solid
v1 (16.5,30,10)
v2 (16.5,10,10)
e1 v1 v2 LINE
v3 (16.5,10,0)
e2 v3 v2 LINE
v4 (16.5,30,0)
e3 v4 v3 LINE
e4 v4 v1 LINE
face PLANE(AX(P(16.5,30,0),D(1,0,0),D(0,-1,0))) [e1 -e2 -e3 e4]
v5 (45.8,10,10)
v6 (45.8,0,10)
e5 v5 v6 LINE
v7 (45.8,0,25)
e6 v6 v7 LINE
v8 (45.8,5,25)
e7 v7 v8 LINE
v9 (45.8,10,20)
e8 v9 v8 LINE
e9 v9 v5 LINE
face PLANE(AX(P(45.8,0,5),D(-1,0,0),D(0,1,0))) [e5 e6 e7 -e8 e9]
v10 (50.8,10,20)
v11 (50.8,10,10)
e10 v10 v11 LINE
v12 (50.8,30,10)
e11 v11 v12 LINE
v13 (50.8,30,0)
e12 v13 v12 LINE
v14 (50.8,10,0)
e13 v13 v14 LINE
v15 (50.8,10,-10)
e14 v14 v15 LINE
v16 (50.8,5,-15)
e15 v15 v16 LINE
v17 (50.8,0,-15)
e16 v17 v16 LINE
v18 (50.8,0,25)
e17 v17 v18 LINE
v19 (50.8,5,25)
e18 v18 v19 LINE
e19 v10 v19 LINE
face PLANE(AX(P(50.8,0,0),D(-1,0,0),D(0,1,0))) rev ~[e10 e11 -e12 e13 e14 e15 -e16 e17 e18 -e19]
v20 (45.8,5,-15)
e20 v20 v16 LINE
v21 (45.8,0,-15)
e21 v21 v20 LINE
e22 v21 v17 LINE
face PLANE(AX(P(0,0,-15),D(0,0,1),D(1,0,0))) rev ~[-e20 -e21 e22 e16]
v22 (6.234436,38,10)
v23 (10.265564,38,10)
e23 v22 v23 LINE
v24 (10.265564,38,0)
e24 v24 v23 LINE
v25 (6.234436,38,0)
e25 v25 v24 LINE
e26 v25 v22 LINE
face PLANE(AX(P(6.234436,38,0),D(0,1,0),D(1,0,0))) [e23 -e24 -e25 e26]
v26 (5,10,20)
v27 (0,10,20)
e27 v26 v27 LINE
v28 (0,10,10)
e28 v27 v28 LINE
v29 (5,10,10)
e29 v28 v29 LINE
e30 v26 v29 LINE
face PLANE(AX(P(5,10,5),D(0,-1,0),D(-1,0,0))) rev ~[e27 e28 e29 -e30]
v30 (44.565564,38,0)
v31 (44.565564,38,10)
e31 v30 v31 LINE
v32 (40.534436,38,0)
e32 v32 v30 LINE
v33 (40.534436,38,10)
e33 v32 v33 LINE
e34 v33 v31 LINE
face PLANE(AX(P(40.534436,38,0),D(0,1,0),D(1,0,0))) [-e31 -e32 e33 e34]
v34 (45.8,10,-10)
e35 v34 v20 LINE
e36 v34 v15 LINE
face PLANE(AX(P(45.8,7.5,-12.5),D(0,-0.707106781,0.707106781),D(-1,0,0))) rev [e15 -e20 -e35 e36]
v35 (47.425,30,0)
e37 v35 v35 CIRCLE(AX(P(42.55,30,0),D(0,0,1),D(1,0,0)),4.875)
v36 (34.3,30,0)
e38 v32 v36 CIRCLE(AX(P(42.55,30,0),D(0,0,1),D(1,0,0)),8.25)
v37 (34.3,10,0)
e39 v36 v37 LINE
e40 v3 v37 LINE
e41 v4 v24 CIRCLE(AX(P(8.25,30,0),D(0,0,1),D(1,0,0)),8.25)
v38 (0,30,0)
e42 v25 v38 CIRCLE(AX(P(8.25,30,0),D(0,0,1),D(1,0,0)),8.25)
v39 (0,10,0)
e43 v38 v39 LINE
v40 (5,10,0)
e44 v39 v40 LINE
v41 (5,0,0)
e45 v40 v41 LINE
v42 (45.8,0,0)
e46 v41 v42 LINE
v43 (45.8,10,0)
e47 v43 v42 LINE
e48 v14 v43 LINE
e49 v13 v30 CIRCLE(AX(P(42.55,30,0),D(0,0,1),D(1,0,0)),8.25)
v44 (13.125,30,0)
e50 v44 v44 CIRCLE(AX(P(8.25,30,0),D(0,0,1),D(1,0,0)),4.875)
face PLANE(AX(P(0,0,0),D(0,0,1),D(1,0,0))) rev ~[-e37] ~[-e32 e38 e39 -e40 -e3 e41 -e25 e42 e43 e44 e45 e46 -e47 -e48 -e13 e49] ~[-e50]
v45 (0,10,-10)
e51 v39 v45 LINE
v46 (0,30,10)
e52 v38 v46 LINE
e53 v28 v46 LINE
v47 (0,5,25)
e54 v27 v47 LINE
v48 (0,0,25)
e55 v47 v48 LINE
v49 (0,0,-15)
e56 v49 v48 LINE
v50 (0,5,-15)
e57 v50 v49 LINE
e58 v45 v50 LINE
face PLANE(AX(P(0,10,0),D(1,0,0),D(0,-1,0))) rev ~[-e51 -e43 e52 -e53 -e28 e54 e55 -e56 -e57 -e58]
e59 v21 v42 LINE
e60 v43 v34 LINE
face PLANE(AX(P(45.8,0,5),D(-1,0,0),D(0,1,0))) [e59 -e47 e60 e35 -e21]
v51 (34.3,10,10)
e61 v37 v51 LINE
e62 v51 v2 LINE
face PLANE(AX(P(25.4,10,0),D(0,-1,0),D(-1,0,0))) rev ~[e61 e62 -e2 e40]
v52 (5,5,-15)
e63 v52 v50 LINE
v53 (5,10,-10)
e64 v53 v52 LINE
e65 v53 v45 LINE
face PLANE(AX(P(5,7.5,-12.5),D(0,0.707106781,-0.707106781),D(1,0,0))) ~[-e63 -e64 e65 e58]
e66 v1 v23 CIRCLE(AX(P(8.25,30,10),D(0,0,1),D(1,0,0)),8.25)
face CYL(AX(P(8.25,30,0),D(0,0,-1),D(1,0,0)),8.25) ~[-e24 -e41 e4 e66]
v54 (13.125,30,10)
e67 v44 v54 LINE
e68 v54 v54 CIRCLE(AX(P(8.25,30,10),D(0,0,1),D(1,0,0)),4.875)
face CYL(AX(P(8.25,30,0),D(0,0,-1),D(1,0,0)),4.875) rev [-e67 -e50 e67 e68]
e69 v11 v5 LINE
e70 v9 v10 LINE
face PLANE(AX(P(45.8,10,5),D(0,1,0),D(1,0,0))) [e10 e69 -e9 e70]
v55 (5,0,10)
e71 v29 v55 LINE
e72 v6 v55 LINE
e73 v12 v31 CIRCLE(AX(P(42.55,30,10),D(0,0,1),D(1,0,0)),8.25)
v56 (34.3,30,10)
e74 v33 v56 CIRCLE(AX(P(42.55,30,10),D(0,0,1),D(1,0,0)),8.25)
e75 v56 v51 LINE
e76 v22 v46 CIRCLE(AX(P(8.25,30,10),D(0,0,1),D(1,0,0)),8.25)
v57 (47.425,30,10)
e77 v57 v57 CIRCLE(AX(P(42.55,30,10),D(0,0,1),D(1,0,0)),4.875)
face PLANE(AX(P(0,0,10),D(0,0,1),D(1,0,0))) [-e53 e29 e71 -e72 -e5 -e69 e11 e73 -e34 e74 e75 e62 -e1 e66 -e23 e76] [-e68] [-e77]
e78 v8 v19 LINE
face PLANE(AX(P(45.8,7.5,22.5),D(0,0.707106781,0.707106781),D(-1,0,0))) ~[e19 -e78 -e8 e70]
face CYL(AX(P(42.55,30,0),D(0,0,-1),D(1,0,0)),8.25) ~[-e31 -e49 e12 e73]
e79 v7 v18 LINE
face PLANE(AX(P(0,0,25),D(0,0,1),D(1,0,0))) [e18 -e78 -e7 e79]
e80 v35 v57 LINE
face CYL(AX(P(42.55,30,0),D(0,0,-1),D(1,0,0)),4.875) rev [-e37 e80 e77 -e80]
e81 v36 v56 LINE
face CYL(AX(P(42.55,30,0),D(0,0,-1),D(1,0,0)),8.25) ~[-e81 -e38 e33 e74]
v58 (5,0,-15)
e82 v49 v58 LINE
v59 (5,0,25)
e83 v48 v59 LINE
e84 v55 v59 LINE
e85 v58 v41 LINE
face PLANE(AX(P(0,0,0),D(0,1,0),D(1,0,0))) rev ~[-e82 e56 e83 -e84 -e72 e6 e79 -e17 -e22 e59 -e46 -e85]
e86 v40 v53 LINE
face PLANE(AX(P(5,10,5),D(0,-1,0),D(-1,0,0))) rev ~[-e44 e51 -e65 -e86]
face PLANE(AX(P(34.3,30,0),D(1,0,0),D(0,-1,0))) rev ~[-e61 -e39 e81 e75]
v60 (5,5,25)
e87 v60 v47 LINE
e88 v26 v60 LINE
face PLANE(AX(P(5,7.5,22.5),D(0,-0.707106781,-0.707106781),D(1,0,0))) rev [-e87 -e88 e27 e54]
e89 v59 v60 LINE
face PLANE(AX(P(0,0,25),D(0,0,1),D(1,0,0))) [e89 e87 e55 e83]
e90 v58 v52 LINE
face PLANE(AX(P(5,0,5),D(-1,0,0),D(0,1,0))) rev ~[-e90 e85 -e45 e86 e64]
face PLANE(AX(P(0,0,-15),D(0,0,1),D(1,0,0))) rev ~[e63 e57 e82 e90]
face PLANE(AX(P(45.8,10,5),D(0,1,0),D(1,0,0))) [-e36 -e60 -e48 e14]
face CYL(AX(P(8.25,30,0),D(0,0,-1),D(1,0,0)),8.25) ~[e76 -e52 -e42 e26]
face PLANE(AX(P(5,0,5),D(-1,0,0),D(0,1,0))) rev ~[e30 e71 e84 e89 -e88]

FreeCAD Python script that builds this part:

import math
import FreeCAD as App
import Part
import Sketcher
from FreeCAD import Vector
Q = App.Units.Quantity


def edges_at(feature, points):
    """Names of the edges that pass closest to the given points."""
    edges = feature.Shape.Edges
    near = lambda p: min(range(len(edges)), key=lambda i: edges[i].distToShape(Part.Vertex(*p))[0])
    return sorted({f"Edge{near(p) + 1}" for p in points})


def add_polygon(sketch, points):
    """Adds a closed chain of lines whose ends are joined by coincident constraints."""
    first, n = sketch.GeometryCount, len(points)
    for a, b in zip(points, points[1:] + points[:1]):
        sketch.addGeometry(Part.LineSegment(App.Vector(*a, 0), App.Vector(*b, 0)), False)
    for i in range(n):
        sketch.addConstraint(Sketcher.Constraint("Coincident", first + i, 2, first + (i + 1) % n, 1))

doc = App.newDocument("Part")
body = doc.addObject("PartDesign::Body", "Body")

sketch1 = body.newObject("Sketcher::SketchObject", "Sketch")
sketch1.AttachmentSupport = (doc.getObject("XY_Plane"), [""])
sketch1.MapMode = "FlatFace"
sketch1.addGeometry(Part.LineSegment(Vector(0, 0, 0), Vector(50.8, 0, 0)), False)
sketch1.addGeometry(Part.LineSegment(Vector(50.8, 0, 0), Vector(50.8, 30, 0)), False)
sketch1.addGeometry(Part.ArcOfCircle(Part.Circle(Vector(42.5, 30, 0), Vector(0, 0, 1), 8.2), math.radians(0), math.radians(76)), False)
sketch1.addGeometry(Part.LineSegment(Vector(44.6, 38, 0), Vector(40.5, 38, 0)), False)
sketch1.addGeometry(Part.ArcOfCircle(Part.Circle(Vector(42.5, 30, 0), Vector(0, 0, 1), 8.2), math.radians(104), math.radians(180)), False)
sketch1.addGeometry(Part.LineSegment(Vector(34.3, 30, 0), Vector(34.3, 10, 0)), False)
sketch1.addGeometry(Part.LineSegment(Vector(34.3, 10, 0), Vector(16.5, 10, 0)), False)
sketch1.addGeometry(Part.LineSegment(Vector(16.5, 10, 0), Vector(16.5, 30, 0)), False)
sketch1.addGeometry(Part.ArcOfCircle(Part.Circle(Vector(8.2, 30, 0), Vector(0, 0, 1), 8.2), math.radians(0), math.radians(76)), False)
sketch1.addGeometry(Part.LineSegment(Vector(10.3, 38, 0), Vector(6.2, 38, 0)), False)
sketch1.addGeometry(Part.ArcOfCircle(Part.Circle(Vector(8.2, 30, 0), Vector(0, 0, 1), 8.2), math.radians(104), math.radians(180)), False)
sketch1.addGeometry(Part.LineSegment(Vector(0, 30, 0), Vector(0, 0, 0)), False)
sketch1.addGeometry(Part.Circle(Vector(8.2, 30, 0), Vector(0, 0, 1), 4.9), False)
sketch1.addGeometry(Part.Circle(Vector(42.5, 30, 0), Vector(0, 0, 1), 4.9), False)
sketch1.addConstraint(Sketcher.Constraint("Coincident", 0, 2, 1, 1))
sketch1.addConstraint(Sketcher.Constraint("Tangent", 1, 2, 2, 1))
sketch1.addConstraint(Sketcher.Constraint("Coincident", 2, 2, 3, 1))
sketch1.addConstraint(Sketcher.Constraint("Coincident", 3, 2, 4, 1))
sketch1.addConstraint(Sketcher.Constraint("Tangent", 4, 2, 5, 1))
sketch1.addConstraint(Sketcher.Constraint("Coincident", 5, 2, 6, 1))
sketch1.addConstraint(Sketcher.Constraint("Coincident", 6, 2, 7, 1))
sketch1.addConstraint(Sketcher.Constraint("Tangent", 7, 2, 8, 1))
sketch1.addConstraint(Sketcher.Constraint("Coincident", 8, 2, 9, 1))
sketch1.addConstraint(Sketcher.Constraint("Coincident", 9, 2, 10, 1))
sketch1.addConstraint(Sketcher.Constraint("Tangent", 10, 2, 11, 1))
sketch1.addConstraint(Sketcher.Constraint("Coincident", 11, 2, 0, 1))
sketch1.addConstraint(Sketcher.Constraint("Horizontal", 0))
sketch1.addConstraint(Sketcher.Constraint("Vertical", 1))
sketch1.addConstraint(Sketcher.Constraint("Horizontal", 3))
sketch1.addConstraint(Sketcher.Constraint("Vertical", 5))
sketch1.addConstraint(Sketcher.Constraint("Horizontal", 6))
sketch1.addConstraint(Sketcher.Constraint("Vertical", 7))
sketch1.addConstraint(Sketcher.Constraint("Horizontal", 9))
sketch1.addConstraint(Sketcher.Constraint("Vertical", 11))
sketch1.addConstraint(Sketcher.Constraint("Coincident", 11, 2, -1, 1))
sketch1.addConstraint(Sketcher.Constraint("Coincident", 4, 3, 2, 3))
sketch1.addConstraint(Sketcher.Constraint("Coincident", 10, 3, 8, 3))
sketch1.addConstraint(Sketcher.Constraint("Coincident", 12, 3, 8, 3))
sketch1.addConstraint(Sketcher.Constraint("Coincident", 13, 3, 2, 3))
sketch1.addConstraint(Sketcher.Constraint("Equal", 2, 4))
sketch1.addConstraint(Sketcher.Constraint("Equal", 4, 8))
sketch1.addConstraint(Sketcher.Constraint("Equal", 8, 10))
sketch1.addConstraint(Sketcher.Constraint("Equal", 12, 13))
sketch1.addConstraint(Sketcher.Constraint("Horizontal", 4, 3, 8, 3))
sketch1.addConstraint(Sketcher.Constraint("Horizontal", 3, 2, 8, 2))
sketch1.addConstraint(Sketcher.Constraint("Diameter", 12, Q("9.75 mm")))
sketch1.addConstraint(Sketcher.Constraint("DistanceY", 5, 2, 5, 1, Q("20 mm")))
sketch1.addConstraint(Sketcher.Constraint("Radius", 2, Q("8.25 mm")))
sketch1.addConstraint(Sketcher.Constraint("DistanceX", 0, 1, 0, 2, Q("50.8 mm")))
sketch1.addConstraint(Sketcher.Constraint("DistanceY", -1, 1, 5, 2, Q("10 mm")))
sketch1.addConstraint(Sketcher.Constraint("DistanceY", -1, 1, 2, 2, Q("38 mm")))
pad1 = body.newObject("PartDesign::Pad", "Pad")
pad1.Profile = sketch1
pad1.Length = 10

sketch2 = body.newObject("Sketcher::SketchObject", "Sketch001")
sketch2.AttachmentSupport = (doc.getObject("XY_Plane"), [""])
sketch2.MapMode = "FlatFace"
sketch2.AttachmentOffset = App.Placement(Vector(0, 0, 5), App.Rotation())
add_polygon(sketch2, [(0, 10), (0, 0), (5, 0), (5, 10)])
add_polygon(sketch2, [(46, 10), (46, 0), (51, 0), (51, 10)])
sketch2.addConstraint(Sketcher.Constraint("Vertical", 0))
sketch2.addConstraint(Sketcher.Constraint("Horizontal", 1))
sketch2.addConstraint(Sketcher.Constraint("Vertical", 2))
sketch2.addConstraint(Sketcher.Constraint("Horizontal", 3))
sketch2.addConstraint(Sketcher.Constraint("Vertical", 4))
sketch2.addConstraint(Sketcher.Constraint("Horizontal", 5))
sketch2.addConstraint(Sketcher.Constraint("Vertical", 6))
sketch2.addConstraint(Sketcher.Constraint("Horizontal", 7))
sketch2.addConstraint(Sketcher.Constraint("Coincident", 0, 2, -1, 1))
sketch2.addConstraint(Sketcher.Constraint("PointOnObject", 4, 2, -1))
sketch2.addConstraint(Sketcher.Constraint("Horizontal", 3, 2, 6, 2))
sketch2.addConstraint(Sketcher.Constraint("Equal", 3, 5))
sketch2.addConstraint(Sketcher.Constraint("DistanceX", 1, 1, 1, 2, Q("5 mm")))
sketch2.addConstraint(Sketcher.Constraint("DistanceY", 0, 2, 0, 1, Q("10 mm")))
sketch2.addConstraint(Sketcher.Constraint("DistanceX", -1, 1, 4, 2, Q("45.8 mm")))
pad2 = body.newObject("PartDesign::Pad", "Pad001")
pad2.Profile = sketch2
pad2.Length = 40
pad2.Midplane = True
doc.recompute()

chamfer = body.newObject("PartDesign::Chamfer", "Chamfer")
chamfer.Base = (pad2, edges_at(pad2, [
    (2.5, 10, 25),
    (48.3, 10, 25),
    (48.3, 10, -15),
    (2.5, 10, -15),
]))
chamfer.Size = 5

doc.recompute()
